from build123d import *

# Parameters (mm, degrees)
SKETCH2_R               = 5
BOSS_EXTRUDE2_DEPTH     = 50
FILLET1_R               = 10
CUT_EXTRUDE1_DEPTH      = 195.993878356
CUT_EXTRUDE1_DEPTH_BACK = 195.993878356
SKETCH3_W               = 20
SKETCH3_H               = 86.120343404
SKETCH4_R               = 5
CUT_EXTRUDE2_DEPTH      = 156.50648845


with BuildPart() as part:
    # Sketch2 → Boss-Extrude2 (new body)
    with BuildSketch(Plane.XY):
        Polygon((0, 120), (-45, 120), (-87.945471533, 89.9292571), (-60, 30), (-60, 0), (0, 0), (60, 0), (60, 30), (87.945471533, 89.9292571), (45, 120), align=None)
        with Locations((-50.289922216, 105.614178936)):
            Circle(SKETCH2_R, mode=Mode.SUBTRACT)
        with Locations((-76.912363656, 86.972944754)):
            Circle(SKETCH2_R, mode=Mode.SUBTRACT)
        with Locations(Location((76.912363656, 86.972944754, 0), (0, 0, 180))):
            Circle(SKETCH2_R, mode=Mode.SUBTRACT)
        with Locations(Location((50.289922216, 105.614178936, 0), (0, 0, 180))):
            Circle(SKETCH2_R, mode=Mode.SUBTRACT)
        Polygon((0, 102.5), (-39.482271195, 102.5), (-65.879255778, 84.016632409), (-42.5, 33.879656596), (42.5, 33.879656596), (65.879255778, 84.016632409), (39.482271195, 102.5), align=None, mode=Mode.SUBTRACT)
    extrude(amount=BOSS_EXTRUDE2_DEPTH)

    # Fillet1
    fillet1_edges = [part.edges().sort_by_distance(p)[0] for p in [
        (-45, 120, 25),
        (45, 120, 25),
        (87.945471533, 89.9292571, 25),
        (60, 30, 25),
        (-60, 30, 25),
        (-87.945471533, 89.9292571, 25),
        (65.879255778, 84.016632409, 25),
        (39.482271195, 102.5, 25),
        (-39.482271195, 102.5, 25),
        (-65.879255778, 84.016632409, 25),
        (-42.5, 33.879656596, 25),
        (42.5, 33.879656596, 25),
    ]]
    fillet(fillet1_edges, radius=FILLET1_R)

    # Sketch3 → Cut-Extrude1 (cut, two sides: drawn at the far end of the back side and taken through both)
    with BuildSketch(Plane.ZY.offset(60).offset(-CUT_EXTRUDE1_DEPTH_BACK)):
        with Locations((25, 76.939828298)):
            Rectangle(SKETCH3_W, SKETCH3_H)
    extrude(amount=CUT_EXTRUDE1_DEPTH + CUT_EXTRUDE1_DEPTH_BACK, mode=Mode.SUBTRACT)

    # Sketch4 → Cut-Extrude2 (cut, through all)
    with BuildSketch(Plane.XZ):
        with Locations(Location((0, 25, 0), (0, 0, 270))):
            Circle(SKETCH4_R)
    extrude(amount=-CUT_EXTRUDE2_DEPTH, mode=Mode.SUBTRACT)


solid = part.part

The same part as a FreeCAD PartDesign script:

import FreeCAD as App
import Part
import Sketcher

V = App.Vector
Q = App.Units.Quantity


def edges_at(feature, points):
    """Names of the edges that pass closest to the given points."""
    edges = feature.Shape.Edges
    near = lambda p: min(range(len(edges)), key=lambda i: edges[i].distToShape(Part.Vertex(*p))[0])
    return sorted({f"Edge{near(p) + 1}" for p in points})

doc = App.newDocument("Part")
body = doc.addObject("PartDesign::Body", "Body")

sketch1 = doc.addObject("Sketcher::SketchObject", "Sketch")
body.addObject(sketch1)
sketch1.AttachmentSupport = (doc.XY_Plane, [""])
sketch1.MapMode = "FlatFace"
sketch1.addGeometry(Part.LineSegment(V(-45, 120, 0), V(-87.945472, 89.929257, 0)), False)
sketch1.addGeometry(Part.LineSegment(V(-87.945472, 89.929257, 0), V(-60, 30, 0)), False)
sketch1.addGeometry(Part.LineSegment(V(-60, 30, 0), V(-60, 0, 0)), False)
sketch1.addGeometry(Part.LineSegment(V(-60, 0, 0), V(60, 0, 0)), False)
sketch1.addGeometry(Part.LineSegment(V(60, 0, 0), V(60, 30, 0)), False)
sketch1.addGeometry(Part.LineSegment(V(60, 30, 0), V(87.945472, 89.929257, 0)), False)
sketch1.addGeometry(Part.LineSegment(V(87.945472, 89.929257, 0), V(45, 120, 0)), False)
sketch1.addGeometry(Part.LineSegment(V(45, 120, 0), V(-45, 120, 0)), False)
sketch1.addGeometry(Part.LineSegment(V(-39.482271, 102.5, 0), V(39.482271, 102.5, 0)), False)
sketch1.addGeometry(Part.LineSegment(V(39.482271, 102.5, 0), V(65.879256, 84.016632, 0)), False)
sketch1.addGeometry(Part.LineSegment(V(65.879256, 84.016632, 0), V(42.5, 33.879657, 0)), False)
sketch1.addGeometry(Part.LineSegment(V(42.5, 33.879657, 0), V(-42.5, 33.879657, 0)), False)
sketch1.addGeometry(Part.LineSegment(V(-42.5, 33.879657, 0), V(-65.879256, 84.016632, 0)), False)
sketch1.addGeometry(Part.LineSegment(V(-65.879256, 84.016632, 0), V(-39.482271, 102.5, 0)), False)
sketch1.addGeometry(Part.Circle(V(-76.912364, 86.972945, 0), V(0, 0, 1), 5), False)
sketch1.addGeometry(Part.Circle(V(-50.289922, 105.614179, 0), V(0, 0, 1), 5), False)
sketch1.addGeometry(Part.Circle(V(76.912364, 86.972945, 0), V(0, 0, 1), 5), False)
sketch1.addGeometry(Part.Circle(V(50.289922, 105.614179, 0), V(0, 0, 1), 5), False)
sketch1.addConstraint(Sketcher.Constraint("Coincident", 0, 2, 1, 1))
sketch1.addConstraint(Sketcher.Constraint("Coincident", 1, 2, 2, 1))
sketch1.addConstraint(Sketcher.Constraint("Coincident", 2, 2, 3, 1))
sketch1.addConstraint(Sketcher.Constraint("Coincident", 3, 2, 4, 1))
sketch1.addConstraint(Sketcher.Constraint("Coincident", 4, 2, 5, 1))
sketch1.addConstraint(Sketcher.Constraint("Coincident", 5, 2, 6, 1))
sketch1.addConstraint(Sketcher.Constraint("Coincident", 6, 2, 7, 1))
sketch1.addConstraint(Sketcher.Constraint("Coincident", 7, 2, 0, 1))
sketch1.addConstraint(Sketcher.Constraint("Coincident", 8, 2, 9, 1))
sketch1.addConstraint(Sketcher.Constraint("Coincident", 9, 2, 10, 1))
sketch1.addConstraint(Sketcher.Constraint("Coincident", 10, 2, 11, 1))
sketch1.addConstraint(Sketcher.Constraint("Coincident", 11, 2, 12, 1))
sketch1.addConstraint(Sketcher.Constraint("Coincident", 12, 2, 13, 1))
sketch1.addConstraint(Sketcher.Constraint("Coincident", 13, 2, 8, 1))
sketch1.addConstraint(Sketcher.Constraint("Vertical", 2))
sketch1.addConstraint(Sketcher.Constraint("Horizontal", 3))
sketch1.addConstraint(Sketcher.Constraint("Vertical", 4))
sketch1.addConstraint(Sketcher.Constraint("Horizontal", 7))
sketch1.addConstraint(Sketcher.Constraint("Horizontal", 8))
sketch1.addConstraint(Sketcher.Constraint("Horizontal", 11))
sketch1.addConstraint(Sketcher.Constraint("Equal", 14, 15))
sketch1.addConstraint(Sketcher.Constraint("Equal", 15, 16))
sketch1.addConstraint(Sketcher.Constraint("Equal", 16, 17))
sketch1.addConstraint(Sketcher.Constraint("Symmetric", 2, 2, 3, 2, -1, 1))
sketch1.addConstraint(Sketcher.Constraint("Symmetric", 14, 3, 16, 3, -2))
sketch1.addConstraint(Sketcher.Constraint("Symmetric", 15, 3, 17, 3, -2))
sketch1.addConstraint(Sketcher.Constraint("Symmetric", 0, 2, 5, 2, -2))
sketch1.addConstraint(Sketcher.Constraint("Symmetric", 9, 2, 12, 2, -2))
sketch1.addConstraint(Sketcher.Constraint("Parallel", 6, 9))
sketch1.addConstraint(Sketcher.Constraint("Parallel", 5, 10))
sketch1.addConstraint(Sketcher.Constraint("Parallel", 1, 12))
sketch1.addConstraint(Sketcher.Constraint("Parallel", 0, 13))
sketch1.addConstraint(Sketcher.Constraint("Horizontal", 1, 2, 4, 2))
sketch1.addConstraint(Sketcher.Constraint("Equal", 0, 6))
sketch1.addConstraint(Sketcher.Constraint("Diameter", 14, 10.0))
sketch1.addConstraint(Sketcher.Constraint("DistanceX", 3, 1, 3, 2, 120.0))
sketch1.addConstraint(Sketcher.Constraint("DistanceX", 7, 2, 7, 1, 90.0))
sketch1.addConstraint(Sketcher.Constraint("DistanceX", 11, 2, 11, 1, 85.0))
sketch1.addConstraint(Sketcher.Constraint("DistanceY", 2, 2, 2, 1, 30.0))
sketch1.addConstraint(Sketcher.Constraint("Angle", 0, Q("-145 deg")))
sketch1.addConstraint(Sketcher.Constraint("Angle", 1, Q("-65 deg")))
sketch1.addConstraint(Sketcher.Constraint("DistanceY", -1, 1, 6, 2, 120.0))
sketch1.addConstraint(Sketcher.Constraint("DistanceY", -1, 1, 8, 2, 102.5))
sketch1.addConstraint(Sketcher.Constraint("DistanceX", 8, 2, 5, 2, 48.4632))
sketch1.addConstraint(Sketcher.Constraint("DistanceY", 11, 2, 0, 2, 56.049601))
sketch1.addConstraint(Sketcher.Constraint("DistanceY", -1, 1, 15, 3, 105.614179))
sketch1.addConstraint(Sketcher.Constraint("DistanceX", 14, 3, 15, 3, 26.622441))
sketch1.addConstraint(Sketcher.Constraint("DistanceX", 0, 2, 15, 3, 37.655549))
sketch1.addConstraint(Sketcher.Constraint("DistanceY", 10, 2, 16, 3, 53.093288))
pad1 = doc.addObject("PartDesign::Pad", "Pad")
body.addObject(pad1)
pad1.Profile = sketch1
pad1.Length = 50
doc.recompute()

fillet = doc.addObject("PartDesign::Fillet", "Fillet")
body.addObject(fillet)
fillet.Base = (pad1, edges_at(pad1, [
    (-45, 120, 25),
    (45, 120, 25),
    (87.945, 89.929, 25),
    (60, 30, 25),
    (-60, 30, 25),
    (-87.945, 89.929, 25),
    (65.879, 84.017, 25),
    (39.482, 102.5, 25),
    (-39.482, 102.5, 25),
    (-65.879, 84.017, 25),
    (-42.5, 33.88, 25),
    (42.5, 33.88, 25),
]))
fillet.Radius = 10

sketch2 = doc.addObject("Sketcher::SketchObject", "Sketch001")
body.addObject(sketch2)
sketch2.AttachmentSupport = (doc.YZ_Plane, [""])
sketch2.MapMode = "FlatFace"
sketch2.AttachmentOffset = App.Placement(V(0, 0, -60), App.Rotation())
sketch2.addGeometry(Part.LineSegment(V(120, 15, 0), V(33.879657, 15, 0)), False)
sketch2.addGeometry(Part.LineSegment(V(33.879657, 15, 0), V(33.879657, 35, 0)), False)
sketch2.addGeometry(Part.LineSegment(V(33.879657, 35, 0), V(120, 35, 0)), False)
sketch2.addGeometry(Part.LineSegment(V(120, 35, 0), V(120, 15, 0)), False)
sketch2.addConstraint(Sketcher.Constraint("Coincident", 0, 2, 1, 1))
sketch2.addConstraint(Sketcher.Constraint("Coincident", 1, 2, 2, 1))
sketch2.addConstraint(Sketcher.Constraint("Coincident", 2, 2, 3, 1))
sketch2.addConstraint(Sketcher.Constraint("Coincident", 3, 2, 0, 1))
sketch2.addConstraint(Sketcher.Constraint("Horizontal", 0))
sketch2.addConstraint(Sketcher.Constraint("Vertical", 1))
sketch2.addConstraint(Sketcher.Constraint("Horizontal", 2))
sketch2.addConstraint(Sketcher.Constraint("Vertical", 3))
sketch2.addConstraint(Sketcher.Constraint("DistanceY", 1, 1, 1, 2, 20.0))
sketch2.addConstraint(Sketcher.Constraint("DistanceY", -1, 1, 0, 2, 15.0))
sketch2.addConstraint(Sketcher.Constraint("DistanceX", -1, 1, 2, 2, 120.0))
sketch2.addConstraint(Sketcher.Constraint("DistanceX", 0, 2, 0, 1, 86.120343))
pocket1 = doc.addObject("PartDesign::Pocket", "Pocket")
body.addObject(pocket1)
pocket1.Profile = sketch2
pocket1.Type = "ThroughAll"
pocket1.Midplane = True

sketch3 = doc.addObject("Sketcher::SketchObject", "Sketch002")
body.addObject(sketch3)
sketch3.AttachmentSupport = (doc.XZ_Plane, [""])
sketch3.MapMode = "FlatFace"
sketch3.addGeometry(Part.Circle(V(0, 25, 0), V(0, 0, 1), 5), False)
sketch3.addConstraint(Sketcher.Constraint("PointOnObject", 0, 3, -2))
sketch3.addConstraint(Sketcher.Constraint("Diameter", 0, 10.0))
sketch3.addConstraint(Sketcher.Constraint("DistanceY", -1, 1, 0, 3, 25.0))
pocket2 = doc.addObject("PartDesign::Pocket", "Pocket001")
body.addObject(pocket2)
pocket2.Profile = sketch3
pocket2.Type = "ThroughAll"

doc.recompute()
